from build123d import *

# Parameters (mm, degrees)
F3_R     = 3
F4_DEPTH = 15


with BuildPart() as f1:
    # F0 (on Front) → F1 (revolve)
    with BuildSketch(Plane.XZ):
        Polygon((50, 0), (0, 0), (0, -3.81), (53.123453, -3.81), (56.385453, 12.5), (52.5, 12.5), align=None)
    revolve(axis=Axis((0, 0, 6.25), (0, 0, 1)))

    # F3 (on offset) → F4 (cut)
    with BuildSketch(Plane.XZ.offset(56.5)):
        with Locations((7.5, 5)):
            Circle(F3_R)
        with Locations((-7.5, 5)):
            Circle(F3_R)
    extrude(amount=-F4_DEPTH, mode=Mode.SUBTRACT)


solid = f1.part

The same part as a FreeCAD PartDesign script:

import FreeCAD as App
import Part
import Sketcher
from FreeCAD import Vector
Q = App.Units.Quantity

doc = App.newDocument("Part")
body = doc.addObject("PartDesign::Body", "Body")

# Sketch on XZ plane
sketch1 = doc.addObject("Sketcher::SketchObject", "Sketch")
body.addObject(sketch1)
sketch1.AttachmentSupport = (doc.XZ_Plane, [""])
sketch1.MapMode = "FlatFace"
sketch1.addGeometry(Part.LineSegment(Vector(50, 0, 0), Vector(0, 0, 0)), False)
sketch1.addGeometry(Part.LineSegment(Vector(0, 0, 0), Vector(0, -3.8, 0)), False)
sketch1.addGeometry(Part.LineSegment(Vector(0, -3.8, 0), Vector(53.1, -3.8, 0)), False)
sketch1.addGeometry(Part.LineSegment(Vector(53.1, -3.8, 0), Vector(56.4, 12.5, 0)), False)
sketch1.addGeometry(Part.LineSegment(Vector(56.4, 12.5, 0), Vector(52.5, 12.5, 0)), False)
sketch1.addGeometry(Part.LineSegment(Vector(52.5, 12.5, 0), Vector(50, 0, 0)), False)
sketch1.addConstraint(Sketcher.Constraint("Coincident", 0, 2, 1, 1))
sketch1.addConstraint(Sketcher.Constraint("Coincident", 1, 2, 2, 1))
sketch1.addConstraint(Sketcher.Constraint("Coincident", 2, 2, 3, 1))
sketch1.addConstraint(Sketcher.Constraint("Coincident", 3, 2, 4, 1))
sketch1.addConstraint(Sketcher.Constraint("Coincident", 4, 2, 5, 1))
sketch1.addConstraint(Sketcher.Constraint("Coincident", 5, 2, 0, 1))
sketch1.addConstraint(Sketcher.Constraint("Horizontal", 0))
sketch1.addConstraint(Sketcher.Constraint("Vertical", 1))
sketch1.addConstraint(Sketcher.Constraint("Horizontal", 2))
sketch1.addConstraint(Sketcher.Constraint("Horizontal", 4))
sketch1.addConstraint(Sketcher.Constraint("Coincident", 0, 2, -1, 1))
sketch1.addConstraint(Sketcher.Constraint("Parallel", 3, 5))
sketch1.addConstraint(Sketcher.Constraint("DistanceX", 0, 2, 0, 1, Q("50 mm")))
sketch1.addConstraint(Sketcher.Constraint("DistanceY", 1, 2, 1, 1, Q("3.81 mm")))
sketch1.addConstraint(Sketcher.Constraint("DistanceY", -1, 1, 3, 2, Q("12.5 mm")))
sketch1.addConstraint(Sketcher.Constraint("DistanceX", -1, 1, 4, 2, Q("52.5 mm")))
sketch1.addConstraint(Sketcher.Constraint("DistanceX", 2, 1, 2, 2, Q("53.123453 mm")))
revolution = doc.addObject("PartDesign::Revolution", "Revolution")
body.addObject(revolution)
revolution.Profile = sketch1
revolution.ReferenceAxis = (sketch1, ["V_Axis"])
revolution.Angle = 360

# Sketch on XZ plane
sketch2 = doc.addObject("Sketcher::SketchObject", "Sketch001")
body.addObject(sketch2)
sketch2.AttachmentSupport = (doc.XZ_Plane, [""])
sketch2.MapMode = "FlatFace"
sketch2.AttachmentOffset = App.Placement(Vector(0, 0, 56.5), App.Rotation())
sketch2.addGeometry(Part.Circle(Vector(7.5, 5, 0), Vector(0, 0, 1), 3), False)
sketch2.addGeometry(Part.Circle(Vector(-7.5, 5, 0), Vector(0, 0, 1), 3), False)
sketch2.addConstraint(Sketcher.Constraint("Equal", 0, 1))
sketch2.addConstraint(Sketcher.Constraint("Symmetric", 0, 3, 1, 3, -2))
sketch2.addConstraint(Sketcher.Constraint("Diameter", 0, Q("6 mm")))
sketch2.addConstraint(Sketcher.Constraint("DistanceY", -1, 1, 0, 3, Q("5 mm")))
sketch2.addConstraint(Sketcher.Constraint("DistanceX", 1, 3, 0, 3, Q("15 mm")))
pocket1 = doc.addObject("PartDesign::Pocket", "Pocket")
body.addObject(pocket1)
pocket1.Profile = sketch2
pocket1.Length = 15

doc.recompute()
